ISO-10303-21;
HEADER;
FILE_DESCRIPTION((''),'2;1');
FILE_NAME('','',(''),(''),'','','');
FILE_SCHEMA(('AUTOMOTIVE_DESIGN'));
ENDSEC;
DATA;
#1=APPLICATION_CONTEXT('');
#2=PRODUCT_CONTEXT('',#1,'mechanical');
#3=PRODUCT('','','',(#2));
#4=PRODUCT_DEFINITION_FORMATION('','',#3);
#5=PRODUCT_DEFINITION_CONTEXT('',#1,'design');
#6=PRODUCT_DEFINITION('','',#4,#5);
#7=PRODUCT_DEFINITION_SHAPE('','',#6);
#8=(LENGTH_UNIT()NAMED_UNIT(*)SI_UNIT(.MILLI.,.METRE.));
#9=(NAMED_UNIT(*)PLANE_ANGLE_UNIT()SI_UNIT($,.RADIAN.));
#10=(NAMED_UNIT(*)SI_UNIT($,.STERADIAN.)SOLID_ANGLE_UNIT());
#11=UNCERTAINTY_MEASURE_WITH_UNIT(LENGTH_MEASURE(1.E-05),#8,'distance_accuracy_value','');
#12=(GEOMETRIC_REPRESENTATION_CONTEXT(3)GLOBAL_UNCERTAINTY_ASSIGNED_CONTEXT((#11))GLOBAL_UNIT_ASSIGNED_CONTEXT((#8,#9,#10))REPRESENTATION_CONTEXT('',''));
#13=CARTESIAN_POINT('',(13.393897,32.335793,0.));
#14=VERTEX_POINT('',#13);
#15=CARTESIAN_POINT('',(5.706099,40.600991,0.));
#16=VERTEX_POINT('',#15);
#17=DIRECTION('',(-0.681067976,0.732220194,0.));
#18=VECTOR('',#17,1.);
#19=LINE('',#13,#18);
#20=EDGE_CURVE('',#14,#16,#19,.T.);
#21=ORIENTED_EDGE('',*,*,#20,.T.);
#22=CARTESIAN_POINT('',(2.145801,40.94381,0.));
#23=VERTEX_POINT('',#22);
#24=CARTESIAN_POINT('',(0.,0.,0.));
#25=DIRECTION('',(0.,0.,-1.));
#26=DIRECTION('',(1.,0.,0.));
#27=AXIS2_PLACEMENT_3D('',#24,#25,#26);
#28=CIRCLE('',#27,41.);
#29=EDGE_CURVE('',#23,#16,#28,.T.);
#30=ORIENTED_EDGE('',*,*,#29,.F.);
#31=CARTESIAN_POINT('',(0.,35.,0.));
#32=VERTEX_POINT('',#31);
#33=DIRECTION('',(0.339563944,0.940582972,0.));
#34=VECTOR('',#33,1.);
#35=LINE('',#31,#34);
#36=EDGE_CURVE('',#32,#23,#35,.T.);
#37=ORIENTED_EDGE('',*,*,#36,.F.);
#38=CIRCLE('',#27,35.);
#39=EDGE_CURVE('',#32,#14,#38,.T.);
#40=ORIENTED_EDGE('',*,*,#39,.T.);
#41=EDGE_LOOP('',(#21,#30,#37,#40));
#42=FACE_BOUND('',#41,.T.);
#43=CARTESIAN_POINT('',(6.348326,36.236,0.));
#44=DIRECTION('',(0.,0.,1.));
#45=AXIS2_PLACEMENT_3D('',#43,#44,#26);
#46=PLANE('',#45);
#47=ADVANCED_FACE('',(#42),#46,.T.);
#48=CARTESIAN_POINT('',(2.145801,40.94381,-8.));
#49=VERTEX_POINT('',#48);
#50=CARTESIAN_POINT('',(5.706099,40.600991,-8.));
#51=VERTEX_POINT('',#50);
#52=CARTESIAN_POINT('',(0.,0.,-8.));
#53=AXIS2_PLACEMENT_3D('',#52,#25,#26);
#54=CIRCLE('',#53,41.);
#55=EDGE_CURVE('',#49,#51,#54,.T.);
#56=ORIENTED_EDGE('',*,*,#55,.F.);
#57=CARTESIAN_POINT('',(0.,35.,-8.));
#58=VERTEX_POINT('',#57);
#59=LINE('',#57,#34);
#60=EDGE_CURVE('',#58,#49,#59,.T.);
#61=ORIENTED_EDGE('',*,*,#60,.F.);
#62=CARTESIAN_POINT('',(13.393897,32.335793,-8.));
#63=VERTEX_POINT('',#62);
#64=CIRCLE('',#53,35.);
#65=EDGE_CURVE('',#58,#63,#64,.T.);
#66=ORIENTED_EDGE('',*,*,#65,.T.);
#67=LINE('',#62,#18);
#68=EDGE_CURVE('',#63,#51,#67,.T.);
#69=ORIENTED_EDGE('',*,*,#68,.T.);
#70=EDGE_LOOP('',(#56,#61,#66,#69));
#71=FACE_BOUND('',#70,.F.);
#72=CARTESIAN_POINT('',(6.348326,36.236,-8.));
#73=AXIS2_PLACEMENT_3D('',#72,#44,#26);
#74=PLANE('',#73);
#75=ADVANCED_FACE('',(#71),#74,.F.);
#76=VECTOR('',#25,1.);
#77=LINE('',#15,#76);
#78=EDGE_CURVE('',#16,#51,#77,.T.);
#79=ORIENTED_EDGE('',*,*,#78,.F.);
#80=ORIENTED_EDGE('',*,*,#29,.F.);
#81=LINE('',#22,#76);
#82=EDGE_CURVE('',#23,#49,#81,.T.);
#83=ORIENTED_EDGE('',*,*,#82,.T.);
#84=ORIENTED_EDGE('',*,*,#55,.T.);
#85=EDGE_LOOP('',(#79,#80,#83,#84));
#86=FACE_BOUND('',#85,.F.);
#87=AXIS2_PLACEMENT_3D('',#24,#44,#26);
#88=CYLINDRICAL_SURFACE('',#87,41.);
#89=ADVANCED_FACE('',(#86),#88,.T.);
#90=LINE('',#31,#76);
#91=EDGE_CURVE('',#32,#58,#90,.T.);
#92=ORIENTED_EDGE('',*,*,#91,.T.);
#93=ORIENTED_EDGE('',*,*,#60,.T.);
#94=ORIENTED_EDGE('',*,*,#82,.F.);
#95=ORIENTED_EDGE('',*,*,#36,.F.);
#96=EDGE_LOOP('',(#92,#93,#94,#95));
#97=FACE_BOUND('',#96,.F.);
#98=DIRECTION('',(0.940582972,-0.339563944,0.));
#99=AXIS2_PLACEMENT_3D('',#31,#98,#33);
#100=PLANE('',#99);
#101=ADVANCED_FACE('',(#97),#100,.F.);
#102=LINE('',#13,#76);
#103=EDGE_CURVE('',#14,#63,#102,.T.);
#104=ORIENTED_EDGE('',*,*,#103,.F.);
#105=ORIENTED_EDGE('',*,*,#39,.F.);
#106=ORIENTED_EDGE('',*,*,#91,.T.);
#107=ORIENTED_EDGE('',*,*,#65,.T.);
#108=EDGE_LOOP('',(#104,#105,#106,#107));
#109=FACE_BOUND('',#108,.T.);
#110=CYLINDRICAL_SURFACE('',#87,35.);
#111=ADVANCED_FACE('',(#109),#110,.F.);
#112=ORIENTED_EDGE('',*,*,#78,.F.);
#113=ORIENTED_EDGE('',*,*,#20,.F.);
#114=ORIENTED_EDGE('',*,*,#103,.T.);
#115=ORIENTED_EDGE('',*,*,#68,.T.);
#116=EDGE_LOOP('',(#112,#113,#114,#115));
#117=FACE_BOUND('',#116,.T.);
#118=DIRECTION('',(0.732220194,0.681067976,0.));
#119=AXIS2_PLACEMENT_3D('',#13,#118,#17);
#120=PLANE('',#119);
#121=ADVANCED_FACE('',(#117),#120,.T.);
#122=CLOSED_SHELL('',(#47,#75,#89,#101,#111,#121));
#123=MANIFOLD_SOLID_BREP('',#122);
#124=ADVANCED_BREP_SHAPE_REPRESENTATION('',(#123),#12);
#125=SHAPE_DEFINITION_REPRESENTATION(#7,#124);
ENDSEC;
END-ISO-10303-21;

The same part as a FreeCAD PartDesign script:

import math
import FreeCAD as App
import Part
import Sketcher

V = App.Vector
Q = App.Units.Quantity

doc = App.newDocument("Part")
params = doc.addObject("Spreadsheet::Sheet", "Params")
for row, (alias, value) in enumerate([
    ("sketch1_radius", "35 mm"),
    ("sketch1_radius2", "41.01 mm"),
    ("pad1_length", "8 mm"),
], start=1):
    params.set(f"A{row}", alias)
    params.set(f"B{row}", "=" + value)
    params.setAlias(f"B{row}", alias)

body = doc.addObject("PartDesign::Body", "Body")

sketch1 = body.newObject("Sketcher::SketchObject", "Sketch")
sketch1.AttachmentSupport = (doc.getObject("XY_Plane"), [""])
sketch1.MapMode = "FlatFace"
sketch1.addGeometry([
    Part.LineSegment(V(2.1, 40.9, 0), V(0, 35, 0)),
    Part.ArcOfCircle(Part.Circle(V(0, 0, 0), V(0, 0, 1), 35), math.radians(68), math.radians(90)),
    Part.LineSegment(V(13.4, 32.3, 0), V(5.7, 40.6, 0)),
    Part.ArcOfCircle(Part.Circle(V(0, 0, 0), V(0, 0, 1), 41), math.radians(82), math.radians(87)),
], False)
sketch1.addConstraint([
    Sketcher.Constraint("Coincident", 0, 2, 1, 2),
    Sketcher.Constraint("Coincident", 1, 1, 2, 1),
    Sketcher.Constraint("Coincident", 2, 2, 3, 1),
    Sketcher.Constraint("Coincident", 3, 2, 0, 1),
    Sketcher.Constraint("Coincident", 1, 3, -1, 1),
    Sketcher.Constraint("PointOnObject", 0, 2, -2),
    Sketcher.Constraint("Radius", 1, Q("35 mm")),
    Sketcher.Constraint("Radius", 3, Q("41.01 mm")),
    Sketcher.Constraint("Angle", 0, Q("-109.8503 deg")),
    Sketcher.Constraint("DistanceY", 3, 3, -1, 1, Q("0.01 mm")),
    Sketcher.Constraint("DistanceX", -1, 1, 1, 1, Q("13.394 mm")),
    Sketcher.Constraint("DistanceX", -1, 1, 2, 2, Q("5.706 mm")),
    Sketcher.Constraint("DistanceY", -1, 1, 2, 2, Q("40.601 mm")),
])
sketch1.setExpression("Constraints[6]", "Params.sketch1_radius")
sketch1.setExpression("Constraints[7]", "Params.sketch1_radius2")
pad1 = body.newObject("PartDesign::Pad", "Pad")
pad1.Profile = sketch1
pad1.setExpression("Length", "Params.pad1_length")
pad1.Reversed = True

doc.recompute()
